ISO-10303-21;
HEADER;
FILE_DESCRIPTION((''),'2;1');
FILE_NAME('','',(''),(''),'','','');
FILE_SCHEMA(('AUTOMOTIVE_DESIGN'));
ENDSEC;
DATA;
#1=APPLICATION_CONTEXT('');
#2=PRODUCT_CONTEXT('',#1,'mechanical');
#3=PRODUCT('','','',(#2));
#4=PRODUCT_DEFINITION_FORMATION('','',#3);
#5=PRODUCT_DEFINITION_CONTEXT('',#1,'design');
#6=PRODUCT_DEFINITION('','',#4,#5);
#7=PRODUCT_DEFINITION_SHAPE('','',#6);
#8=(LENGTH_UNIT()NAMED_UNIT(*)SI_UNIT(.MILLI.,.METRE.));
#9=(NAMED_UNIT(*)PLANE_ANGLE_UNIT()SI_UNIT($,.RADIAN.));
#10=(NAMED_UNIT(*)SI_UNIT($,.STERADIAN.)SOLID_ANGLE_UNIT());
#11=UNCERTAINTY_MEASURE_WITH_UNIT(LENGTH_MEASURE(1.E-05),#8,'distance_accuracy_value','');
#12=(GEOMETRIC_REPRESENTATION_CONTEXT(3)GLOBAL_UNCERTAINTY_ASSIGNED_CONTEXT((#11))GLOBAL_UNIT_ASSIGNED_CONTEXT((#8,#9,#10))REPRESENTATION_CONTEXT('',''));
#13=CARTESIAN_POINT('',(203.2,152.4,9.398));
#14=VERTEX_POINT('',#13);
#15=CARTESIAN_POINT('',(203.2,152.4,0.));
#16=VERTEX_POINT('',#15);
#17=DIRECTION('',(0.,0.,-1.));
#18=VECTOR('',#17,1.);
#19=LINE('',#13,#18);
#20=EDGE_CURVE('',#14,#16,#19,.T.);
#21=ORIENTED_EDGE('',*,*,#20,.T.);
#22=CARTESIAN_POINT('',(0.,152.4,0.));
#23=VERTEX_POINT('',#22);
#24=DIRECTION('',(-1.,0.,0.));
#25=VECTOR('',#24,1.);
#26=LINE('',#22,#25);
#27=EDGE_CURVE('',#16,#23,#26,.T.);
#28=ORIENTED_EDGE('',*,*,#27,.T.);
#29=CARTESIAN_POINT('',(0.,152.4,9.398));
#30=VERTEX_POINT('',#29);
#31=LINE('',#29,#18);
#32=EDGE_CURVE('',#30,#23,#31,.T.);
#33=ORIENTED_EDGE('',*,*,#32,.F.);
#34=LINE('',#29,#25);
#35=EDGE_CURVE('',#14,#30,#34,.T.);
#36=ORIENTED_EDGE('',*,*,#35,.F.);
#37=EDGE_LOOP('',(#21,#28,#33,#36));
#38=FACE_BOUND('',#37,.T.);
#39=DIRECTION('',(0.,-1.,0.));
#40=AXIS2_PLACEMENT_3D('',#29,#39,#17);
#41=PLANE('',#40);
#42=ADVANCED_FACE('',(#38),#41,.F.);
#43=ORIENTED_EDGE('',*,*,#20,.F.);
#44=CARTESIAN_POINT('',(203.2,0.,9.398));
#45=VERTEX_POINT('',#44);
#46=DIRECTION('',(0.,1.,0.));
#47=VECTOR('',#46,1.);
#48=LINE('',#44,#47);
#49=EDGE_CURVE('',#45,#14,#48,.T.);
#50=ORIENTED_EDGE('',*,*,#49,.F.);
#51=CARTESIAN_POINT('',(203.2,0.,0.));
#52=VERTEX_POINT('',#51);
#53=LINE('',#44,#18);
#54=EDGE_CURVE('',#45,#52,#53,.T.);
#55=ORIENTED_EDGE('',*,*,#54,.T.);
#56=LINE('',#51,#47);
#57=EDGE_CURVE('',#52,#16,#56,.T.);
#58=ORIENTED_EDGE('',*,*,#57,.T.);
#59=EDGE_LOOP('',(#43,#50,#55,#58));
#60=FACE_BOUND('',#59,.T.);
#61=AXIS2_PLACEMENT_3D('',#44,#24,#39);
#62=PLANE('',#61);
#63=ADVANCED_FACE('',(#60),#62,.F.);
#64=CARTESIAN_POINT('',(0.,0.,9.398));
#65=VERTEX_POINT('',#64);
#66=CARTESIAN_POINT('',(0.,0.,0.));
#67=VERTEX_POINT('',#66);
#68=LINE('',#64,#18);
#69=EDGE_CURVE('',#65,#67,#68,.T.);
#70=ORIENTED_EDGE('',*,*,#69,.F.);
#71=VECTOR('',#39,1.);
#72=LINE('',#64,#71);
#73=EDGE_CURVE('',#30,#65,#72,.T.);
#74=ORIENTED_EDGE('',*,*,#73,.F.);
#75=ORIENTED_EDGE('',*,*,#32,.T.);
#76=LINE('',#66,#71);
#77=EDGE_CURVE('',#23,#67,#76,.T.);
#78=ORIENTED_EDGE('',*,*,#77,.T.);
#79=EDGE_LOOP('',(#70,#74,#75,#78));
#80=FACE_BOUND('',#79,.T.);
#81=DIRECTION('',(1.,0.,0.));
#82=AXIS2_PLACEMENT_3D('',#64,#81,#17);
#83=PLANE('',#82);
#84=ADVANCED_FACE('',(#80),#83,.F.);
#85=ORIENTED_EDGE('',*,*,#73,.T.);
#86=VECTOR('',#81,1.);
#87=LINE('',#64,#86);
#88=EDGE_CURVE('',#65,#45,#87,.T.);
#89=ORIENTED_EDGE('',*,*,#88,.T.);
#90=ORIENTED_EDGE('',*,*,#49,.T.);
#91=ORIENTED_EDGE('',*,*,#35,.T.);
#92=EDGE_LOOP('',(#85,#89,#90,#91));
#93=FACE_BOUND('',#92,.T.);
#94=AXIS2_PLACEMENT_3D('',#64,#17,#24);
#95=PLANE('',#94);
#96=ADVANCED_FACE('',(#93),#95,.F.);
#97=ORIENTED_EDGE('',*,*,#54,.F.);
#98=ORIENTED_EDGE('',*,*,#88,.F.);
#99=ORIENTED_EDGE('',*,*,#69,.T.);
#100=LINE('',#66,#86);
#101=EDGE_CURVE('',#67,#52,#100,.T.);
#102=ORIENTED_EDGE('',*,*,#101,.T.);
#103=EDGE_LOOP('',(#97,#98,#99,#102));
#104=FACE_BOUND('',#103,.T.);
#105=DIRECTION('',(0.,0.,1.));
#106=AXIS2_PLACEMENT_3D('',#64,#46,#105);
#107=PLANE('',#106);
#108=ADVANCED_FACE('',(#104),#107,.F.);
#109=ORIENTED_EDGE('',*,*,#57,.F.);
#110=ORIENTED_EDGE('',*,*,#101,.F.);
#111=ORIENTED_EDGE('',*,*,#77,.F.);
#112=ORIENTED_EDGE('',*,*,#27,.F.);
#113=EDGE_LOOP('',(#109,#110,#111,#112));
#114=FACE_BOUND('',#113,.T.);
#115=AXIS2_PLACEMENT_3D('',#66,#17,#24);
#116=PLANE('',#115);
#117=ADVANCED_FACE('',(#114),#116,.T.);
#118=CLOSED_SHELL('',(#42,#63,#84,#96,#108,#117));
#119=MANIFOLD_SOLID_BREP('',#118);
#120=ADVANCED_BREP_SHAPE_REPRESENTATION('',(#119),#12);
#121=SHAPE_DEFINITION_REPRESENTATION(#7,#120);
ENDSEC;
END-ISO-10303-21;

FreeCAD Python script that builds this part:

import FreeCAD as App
import Part
import Sketcher

V = App.Vector
Q = App.Units.Quantity


def add_polygon(sketch, points):
    """Adds a closed chain of lines whose ends are joined by coincident constraints."""
    first, n = sketch.GeometryCount, len(points)
    for a, b in zip(points, points[1:] + points[:1]):
        sketch.addGeometry(Part.LineSegment(App.Vector(*a, 0), App.Vector(*b, 0)), False)
    for i in range(n):
        sketch.addConstraint(Sketcher.Constraint("Coincident", first + i, 2, first + (i + 1) % n, 1))

doc = App.newDocument("Part")
body = doc.addObject("PartDesign::Body", "Body")

sketch1 = body.newObject("Sketcher::SketchObject", "Sketch")
sketch1.AttachmentSupport = (doc.getObject("XY_Plane"), [""])
sketch1.MapMode = "FlatFace"
add_polygon(sketch1, [(0, 152), (0, 0), (203, 0), (203, 152)])
sketch1.addConstraint([
    Sketcher.Constraint("Vertical", 0),
    Sketcher.Constraint("Horizontal", 1),
    Sketcher.Constraint("Vertical", 2),
    Sketcher.Constraint("Horizontal", 3),
    Sketcher.Constraint("Coincident", 0, 2, -1, 1),
    Sketcher.Constraint("DistanceX", 1, 1, 1, 2, Q("8 in")),
    Sketcher.Constraint("DistanceY", 0, 2, 0, 1, Q("6 in")),
])
pad1 = body.newObject("PartDesign::Pad", "Pad")
pad1.Profile = sketch1
pad1.Length = Q("0.37 in")

doc.recompute()
